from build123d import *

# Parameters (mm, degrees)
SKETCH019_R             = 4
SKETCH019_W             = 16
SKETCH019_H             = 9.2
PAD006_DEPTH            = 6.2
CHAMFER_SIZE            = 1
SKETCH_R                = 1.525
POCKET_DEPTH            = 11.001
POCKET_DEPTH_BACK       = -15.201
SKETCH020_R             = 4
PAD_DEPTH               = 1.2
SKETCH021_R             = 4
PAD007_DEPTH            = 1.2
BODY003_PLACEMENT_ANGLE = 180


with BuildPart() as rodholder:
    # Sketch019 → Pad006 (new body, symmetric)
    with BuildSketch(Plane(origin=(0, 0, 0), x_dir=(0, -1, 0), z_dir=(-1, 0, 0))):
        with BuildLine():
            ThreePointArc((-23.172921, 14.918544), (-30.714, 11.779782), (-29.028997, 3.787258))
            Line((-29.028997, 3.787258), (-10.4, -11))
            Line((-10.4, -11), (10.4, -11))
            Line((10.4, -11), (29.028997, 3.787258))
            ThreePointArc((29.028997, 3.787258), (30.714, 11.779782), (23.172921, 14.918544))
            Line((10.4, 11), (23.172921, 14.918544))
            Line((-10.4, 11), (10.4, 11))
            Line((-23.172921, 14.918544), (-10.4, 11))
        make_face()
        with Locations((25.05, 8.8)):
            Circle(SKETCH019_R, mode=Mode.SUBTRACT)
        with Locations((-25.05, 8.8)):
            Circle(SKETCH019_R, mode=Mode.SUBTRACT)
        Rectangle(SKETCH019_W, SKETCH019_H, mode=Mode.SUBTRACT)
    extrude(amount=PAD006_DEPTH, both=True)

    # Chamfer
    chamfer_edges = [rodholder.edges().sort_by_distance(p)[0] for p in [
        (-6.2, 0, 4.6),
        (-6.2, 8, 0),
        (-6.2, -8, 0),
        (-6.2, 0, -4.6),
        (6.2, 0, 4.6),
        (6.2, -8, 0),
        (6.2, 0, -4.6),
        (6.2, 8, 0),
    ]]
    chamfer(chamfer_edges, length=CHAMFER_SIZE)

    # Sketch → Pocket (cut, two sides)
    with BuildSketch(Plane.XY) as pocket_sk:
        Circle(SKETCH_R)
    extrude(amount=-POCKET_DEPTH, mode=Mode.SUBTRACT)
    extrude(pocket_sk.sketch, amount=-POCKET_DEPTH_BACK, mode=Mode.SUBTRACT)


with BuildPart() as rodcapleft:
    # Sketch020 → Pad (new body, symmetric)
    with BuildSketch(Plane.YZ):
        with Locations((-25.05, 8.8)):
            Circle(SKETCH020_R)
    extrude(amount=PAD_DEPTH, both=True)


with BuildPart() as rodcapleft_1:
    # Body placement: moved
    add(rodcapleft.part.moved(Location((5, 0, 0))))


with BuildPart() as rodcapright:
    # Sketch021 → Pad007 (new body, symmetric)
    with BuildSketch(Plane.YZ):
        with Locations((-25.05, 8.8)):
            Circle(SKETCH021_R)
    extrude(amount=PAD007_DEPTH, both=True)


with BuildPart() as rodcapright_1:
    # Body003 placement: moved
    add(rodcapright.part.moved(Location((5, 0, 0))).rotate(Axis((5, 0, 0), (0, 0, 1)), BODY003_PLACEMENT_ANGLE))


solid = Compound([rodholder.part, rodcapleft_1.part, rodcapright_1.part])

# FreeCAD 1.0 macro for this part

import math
import FreeCAD as App
import Part
import Sketcher
from FreeCAD import Vector


def edges_at(feature, points):
    """Names of the edges that pass closest to the given points."""
    edges = feature.Shape.Edges
    near = lambda p: min(range(len(edges)), key=lambda i: edges[i].distToShape(Part.Vertex(*p))[0])
    return sorted({f"Edge{near(p) + 1}" for p in points})

doc = App.newDocument("Part")
body = doc.addObject("PartDesign::Body", "Body")

# Sketch on YZ plane
sketch1 = body.newObject("Sketcher::SketchObject", "Sketch")
sketch1.AttachmentSupport = (doc.getObject("YZ_Plane"), [""])
sketch1.MapMode = "FlatFace"
sketch1.addGeometry([
    Part.ArcOfCircle(Part.Circle(Vector(25, 8.8, 0), Vector(0, 0, 1), 6.4), math.radians(-52), math.radians(107)),  # 0
    Part.LineSegment(Vector(29, 3.8, 0), Vector(10.4, -11, 0)),  # 1
    Part.LineSegment(Vector(10.4, -11, 0), Vector(-10.4, -11, 0)),  # 2
    Part.LineSegment(Vector(-10.4, -11, 0), Vector(-29, 3.8, 0)),  # 3
    Part.ArcOfCircle(Part.Circle(Vector(-25, 8.8, 0), Vector(0, 0, 1), 6.4), math.radians(73), math.radians(232)),  # 4
    Part.LineSegment(Vector(-23.2, 14.9, 0), Vector(-10.4, 11, 0)),  # 5
    Part.LineSegment(Vector(-10.4, 11, 0), Vector(10.4, 11, 0)),  # 6
    Part.LineSegment(Vector(10.4, 11, 0), Vector(23.2, 14.9, 0)),  # 7
    Part.LineSegment(Vector(-8, -4.6, 0), Vector(8, -4.6, 0)),  # 8
    Part.LineSegment(Vector(8, -4.6, 0), Vector(8, 4.6, 0)),  # 9
    Part.LineSegment(Vector(8, 4.6, 0), Vector(-8, 4.6, 0)),  # 10
    Part.LineSegment(Vector(-8, 4.6, 0), Vector(-8, -4.6, 0)),  # 11
    Part.Circle(Vector(25.1, 8.8, 0), Vector(0, 0, 1), 4),  # 12
    Part.Circle(Vector(-25.1, 8.8, 0), Vector(0, 0, 1), 4),  # 13
], False)
sketch1.addConstraint([
    Sketcher.Constraint("Tangent", 0, 1, 1, 1),
    Sketcher.Constraint("Coincident", 1, 2, 2, 1),
    Sketcher.Constraint("Coincident", 2, 2, 3, 1),
    Sketcher.Constraint("Tangent", 3, 2, 4, 2),
    Sketcher.Constraint("Tangent", 4, 1, 5, 1),
    Sketcher.Constraint("Coincident", 5, 2, 6, 1),
    Sketcher.Constraint("Coincident", 6, 2, 7, 1),
    Sketcher.Constraint("Tangent", 7, 2, 0, 2),
    Sketcher.Constraint("Coincident", 8, 2, 9, 1),
    Sketcher.Constraint("Coincident", 9, 2, 10, 1),
    Sketcher.Constraint("Coincident", 10, 2, 11, 1),
    Sketcher.Constraint("Coincident", 11, 2, 8, 1),
    Sketcher.Constraint("Horizontal", 2),
    Sketcher.Constraint("Horizontal", 6),
    Sketcher.Constraint("Horizontal", 8),
    Sketcher.Constraint("Vertical", 9),
    Sketcher.Constraint("Horizontal", 10),
    Sketcher.Constraint("Vertical", 11),
    Sketcher.Constraint("Coincident", 12, 3, 0, 3),
    Sketcher.Constraint("Coincident", 13, 3, 4, 3),
    Sketcher.Constraint("Equal", 0, 4),
    Sketcher.Constraint("Equal", 12, 13),
    Sketcher.Constraint("Symmetric", 1, 2, 5, 2, -1, 1),
    Sketcher.Constraint("Symmetric", 8, 2, 10, 2, -1, 1),
    Sketcher.Constraint("Symmetric", 0, 3, 4, 3, -2),
    Sketcher.Constraint("Horizontal", 0, 1, 3, 2),
    Sketcher.Constraint("Horizontal", 4, 1, 7, 2),
    Sketcher.Constraint("Diameter", 12, 8.0),
    Sketcher.Constraint("Radius", 0, 6.4),
    Sketcher.Constraint("DistanceX", 8, 1, 8, 2, 16.0),
    Sketcher.Constraint("DistanceX", 2, 2, 2, 1, 20.8),
    Sketcher.Constraint("DistanceY", 9, 1, 9, 2, 9.2),
    Sketcher.Constraint("DistanceY", 1, 2, -1, 1, 11.0),
    Sketcher.Constraint("DistanceY", -1, 1, 0, 3, 8.8),
    Sketcher.Constraint("DistanceX", 4, 3, 0, 3, 50.099999),
])
pad1 = body.newObject("PartDesign::Pad", "Pad")
pad1.Profile = sketch1
pad1.Length = 12.4
pad1.Midplane = True
doc.recompute()

chamfer = body.newObject("PartDesign::Chamfer", "Chamfer")
chamfer.Base = (pad1, edges_at(pad1, [
    (-6.2, 0, 4.6),
    (-6.2, 8, 0),
    (-6.2, -8, 0),
    (-6.2, 0, -4.6),
    (6.2, 0, 4.6),
    (6.2, -8, 0),
    (6.2, 0, -4.6),
    (6.2, 8, 0),
]))
chamfer.Size = 1

# Sketch on XY plane
sketch2 = body.newObject("Sketcher::SketchObject", "Sketch001")
sketch2.AttachmentSupport = (doc.getObject("XY_Plane"), [""])
sketch2.MapMode = "FlatFace"
sketch2.addGeometry(Part.Circle(Vector(0, 0, 0), Vector(0, 0, 1), 1.5), False)
sketch2.addConstraint([
    Sketcher.Constraint("Coincident", 0, 3, -1, 1),
    Sketcher.Constraint("Diameter", 0, 3.05),
])
pocket1 = body.newObject("PartDesign::Pocket", "Pocket")
pocket1.Profile = sketch2
pocket1.Type = "ThroughAll"
pocket1.Midplane = True
body2 = doc.addObject("PartDesign::Body", "Body001")

# Sketch on YZ plane
sketch3 = body2.newObject("Sketcher::SketchObject", "Sketch002")
sketch3.AttachmentSupport = (doc.getObject("YZ_Plane001"), [""])
sketch3.MapMode = "FlatFace"
sketch3.addGeometry(Part.Circle(Vector(-25.1, 8.8, 0), Vector(0, 0, 1), 4), False)
sketch3.addConstraint([
    Sketcher.Constraint("Diameter", 0, 8.0),
    Sketcher.Constraint("DistanceY", -1, 1, 0, 3, 8.8),
    Sketcher.Constraint("DistanceX", 0, 3, -1, 1, 25.05),
])
pad2 = body2.newObject("PartDesign::Pad", "Pad001")
pad2.Profile = sketch3
pad2.Length = 2.4
pad2.Midplane = True
body3 = doc.addObject("PartDesign::Body", "Body002")
doc.recompute()

body2.Placement = App.Placement(Vector(5, 0, 0), App.Rotation(Vector(0, 0, 1), 0))
boolean = body3.newObject("PartDesign::Boolean", "Boolean")
boolean.Type = "Fuse"
boolean.addObjects([body2])
body4 = doc.addObject("PartDesign::Body", "Body003")

# Sketch on YZ plane
sketch4 = body4.newObject("Sketcher::SketchObject", "Sketch003")
sketch4.AttachmentSupport = (doc.getObject("YZ_Plane003"), [""])
sketch4.MapMode = "FlatFace"
sketch4.addGeometry(Part.Circle(Vector(-25.1, 8.8, 0), Vector(0, 0, 1), 4), False)
sketch4.addConstraint([
    Sketcher.Constraint("Diameter", 0, 8.0),
    Sketcher.Constraint("DistanceY", -1, 1, 0, 3, 8.8),
    Sketcher.Constraint("DistanceX", 0, 3, -1, 1, 25.05),
])
pad3 = body4.newObject("PartDesign::Pad", "Pad002")
pad3.Profile = sketch4
pad3.Length = 2.4
pad3.Midplane = True
body5 = doc.addObject("PartDesign::Body", "Body004")
doc.recompute()

body4.Placement = App.Placement(Vector(5, 0, 0), App.Rotation(Vector(0, 0, 1), 180))
boolean2 = body5.newObject("PartDesign::Boolean", "Boolean001")
boolean2.Type = "Fuse"
boolean2.addObjects([body4])

doc.recompute()
